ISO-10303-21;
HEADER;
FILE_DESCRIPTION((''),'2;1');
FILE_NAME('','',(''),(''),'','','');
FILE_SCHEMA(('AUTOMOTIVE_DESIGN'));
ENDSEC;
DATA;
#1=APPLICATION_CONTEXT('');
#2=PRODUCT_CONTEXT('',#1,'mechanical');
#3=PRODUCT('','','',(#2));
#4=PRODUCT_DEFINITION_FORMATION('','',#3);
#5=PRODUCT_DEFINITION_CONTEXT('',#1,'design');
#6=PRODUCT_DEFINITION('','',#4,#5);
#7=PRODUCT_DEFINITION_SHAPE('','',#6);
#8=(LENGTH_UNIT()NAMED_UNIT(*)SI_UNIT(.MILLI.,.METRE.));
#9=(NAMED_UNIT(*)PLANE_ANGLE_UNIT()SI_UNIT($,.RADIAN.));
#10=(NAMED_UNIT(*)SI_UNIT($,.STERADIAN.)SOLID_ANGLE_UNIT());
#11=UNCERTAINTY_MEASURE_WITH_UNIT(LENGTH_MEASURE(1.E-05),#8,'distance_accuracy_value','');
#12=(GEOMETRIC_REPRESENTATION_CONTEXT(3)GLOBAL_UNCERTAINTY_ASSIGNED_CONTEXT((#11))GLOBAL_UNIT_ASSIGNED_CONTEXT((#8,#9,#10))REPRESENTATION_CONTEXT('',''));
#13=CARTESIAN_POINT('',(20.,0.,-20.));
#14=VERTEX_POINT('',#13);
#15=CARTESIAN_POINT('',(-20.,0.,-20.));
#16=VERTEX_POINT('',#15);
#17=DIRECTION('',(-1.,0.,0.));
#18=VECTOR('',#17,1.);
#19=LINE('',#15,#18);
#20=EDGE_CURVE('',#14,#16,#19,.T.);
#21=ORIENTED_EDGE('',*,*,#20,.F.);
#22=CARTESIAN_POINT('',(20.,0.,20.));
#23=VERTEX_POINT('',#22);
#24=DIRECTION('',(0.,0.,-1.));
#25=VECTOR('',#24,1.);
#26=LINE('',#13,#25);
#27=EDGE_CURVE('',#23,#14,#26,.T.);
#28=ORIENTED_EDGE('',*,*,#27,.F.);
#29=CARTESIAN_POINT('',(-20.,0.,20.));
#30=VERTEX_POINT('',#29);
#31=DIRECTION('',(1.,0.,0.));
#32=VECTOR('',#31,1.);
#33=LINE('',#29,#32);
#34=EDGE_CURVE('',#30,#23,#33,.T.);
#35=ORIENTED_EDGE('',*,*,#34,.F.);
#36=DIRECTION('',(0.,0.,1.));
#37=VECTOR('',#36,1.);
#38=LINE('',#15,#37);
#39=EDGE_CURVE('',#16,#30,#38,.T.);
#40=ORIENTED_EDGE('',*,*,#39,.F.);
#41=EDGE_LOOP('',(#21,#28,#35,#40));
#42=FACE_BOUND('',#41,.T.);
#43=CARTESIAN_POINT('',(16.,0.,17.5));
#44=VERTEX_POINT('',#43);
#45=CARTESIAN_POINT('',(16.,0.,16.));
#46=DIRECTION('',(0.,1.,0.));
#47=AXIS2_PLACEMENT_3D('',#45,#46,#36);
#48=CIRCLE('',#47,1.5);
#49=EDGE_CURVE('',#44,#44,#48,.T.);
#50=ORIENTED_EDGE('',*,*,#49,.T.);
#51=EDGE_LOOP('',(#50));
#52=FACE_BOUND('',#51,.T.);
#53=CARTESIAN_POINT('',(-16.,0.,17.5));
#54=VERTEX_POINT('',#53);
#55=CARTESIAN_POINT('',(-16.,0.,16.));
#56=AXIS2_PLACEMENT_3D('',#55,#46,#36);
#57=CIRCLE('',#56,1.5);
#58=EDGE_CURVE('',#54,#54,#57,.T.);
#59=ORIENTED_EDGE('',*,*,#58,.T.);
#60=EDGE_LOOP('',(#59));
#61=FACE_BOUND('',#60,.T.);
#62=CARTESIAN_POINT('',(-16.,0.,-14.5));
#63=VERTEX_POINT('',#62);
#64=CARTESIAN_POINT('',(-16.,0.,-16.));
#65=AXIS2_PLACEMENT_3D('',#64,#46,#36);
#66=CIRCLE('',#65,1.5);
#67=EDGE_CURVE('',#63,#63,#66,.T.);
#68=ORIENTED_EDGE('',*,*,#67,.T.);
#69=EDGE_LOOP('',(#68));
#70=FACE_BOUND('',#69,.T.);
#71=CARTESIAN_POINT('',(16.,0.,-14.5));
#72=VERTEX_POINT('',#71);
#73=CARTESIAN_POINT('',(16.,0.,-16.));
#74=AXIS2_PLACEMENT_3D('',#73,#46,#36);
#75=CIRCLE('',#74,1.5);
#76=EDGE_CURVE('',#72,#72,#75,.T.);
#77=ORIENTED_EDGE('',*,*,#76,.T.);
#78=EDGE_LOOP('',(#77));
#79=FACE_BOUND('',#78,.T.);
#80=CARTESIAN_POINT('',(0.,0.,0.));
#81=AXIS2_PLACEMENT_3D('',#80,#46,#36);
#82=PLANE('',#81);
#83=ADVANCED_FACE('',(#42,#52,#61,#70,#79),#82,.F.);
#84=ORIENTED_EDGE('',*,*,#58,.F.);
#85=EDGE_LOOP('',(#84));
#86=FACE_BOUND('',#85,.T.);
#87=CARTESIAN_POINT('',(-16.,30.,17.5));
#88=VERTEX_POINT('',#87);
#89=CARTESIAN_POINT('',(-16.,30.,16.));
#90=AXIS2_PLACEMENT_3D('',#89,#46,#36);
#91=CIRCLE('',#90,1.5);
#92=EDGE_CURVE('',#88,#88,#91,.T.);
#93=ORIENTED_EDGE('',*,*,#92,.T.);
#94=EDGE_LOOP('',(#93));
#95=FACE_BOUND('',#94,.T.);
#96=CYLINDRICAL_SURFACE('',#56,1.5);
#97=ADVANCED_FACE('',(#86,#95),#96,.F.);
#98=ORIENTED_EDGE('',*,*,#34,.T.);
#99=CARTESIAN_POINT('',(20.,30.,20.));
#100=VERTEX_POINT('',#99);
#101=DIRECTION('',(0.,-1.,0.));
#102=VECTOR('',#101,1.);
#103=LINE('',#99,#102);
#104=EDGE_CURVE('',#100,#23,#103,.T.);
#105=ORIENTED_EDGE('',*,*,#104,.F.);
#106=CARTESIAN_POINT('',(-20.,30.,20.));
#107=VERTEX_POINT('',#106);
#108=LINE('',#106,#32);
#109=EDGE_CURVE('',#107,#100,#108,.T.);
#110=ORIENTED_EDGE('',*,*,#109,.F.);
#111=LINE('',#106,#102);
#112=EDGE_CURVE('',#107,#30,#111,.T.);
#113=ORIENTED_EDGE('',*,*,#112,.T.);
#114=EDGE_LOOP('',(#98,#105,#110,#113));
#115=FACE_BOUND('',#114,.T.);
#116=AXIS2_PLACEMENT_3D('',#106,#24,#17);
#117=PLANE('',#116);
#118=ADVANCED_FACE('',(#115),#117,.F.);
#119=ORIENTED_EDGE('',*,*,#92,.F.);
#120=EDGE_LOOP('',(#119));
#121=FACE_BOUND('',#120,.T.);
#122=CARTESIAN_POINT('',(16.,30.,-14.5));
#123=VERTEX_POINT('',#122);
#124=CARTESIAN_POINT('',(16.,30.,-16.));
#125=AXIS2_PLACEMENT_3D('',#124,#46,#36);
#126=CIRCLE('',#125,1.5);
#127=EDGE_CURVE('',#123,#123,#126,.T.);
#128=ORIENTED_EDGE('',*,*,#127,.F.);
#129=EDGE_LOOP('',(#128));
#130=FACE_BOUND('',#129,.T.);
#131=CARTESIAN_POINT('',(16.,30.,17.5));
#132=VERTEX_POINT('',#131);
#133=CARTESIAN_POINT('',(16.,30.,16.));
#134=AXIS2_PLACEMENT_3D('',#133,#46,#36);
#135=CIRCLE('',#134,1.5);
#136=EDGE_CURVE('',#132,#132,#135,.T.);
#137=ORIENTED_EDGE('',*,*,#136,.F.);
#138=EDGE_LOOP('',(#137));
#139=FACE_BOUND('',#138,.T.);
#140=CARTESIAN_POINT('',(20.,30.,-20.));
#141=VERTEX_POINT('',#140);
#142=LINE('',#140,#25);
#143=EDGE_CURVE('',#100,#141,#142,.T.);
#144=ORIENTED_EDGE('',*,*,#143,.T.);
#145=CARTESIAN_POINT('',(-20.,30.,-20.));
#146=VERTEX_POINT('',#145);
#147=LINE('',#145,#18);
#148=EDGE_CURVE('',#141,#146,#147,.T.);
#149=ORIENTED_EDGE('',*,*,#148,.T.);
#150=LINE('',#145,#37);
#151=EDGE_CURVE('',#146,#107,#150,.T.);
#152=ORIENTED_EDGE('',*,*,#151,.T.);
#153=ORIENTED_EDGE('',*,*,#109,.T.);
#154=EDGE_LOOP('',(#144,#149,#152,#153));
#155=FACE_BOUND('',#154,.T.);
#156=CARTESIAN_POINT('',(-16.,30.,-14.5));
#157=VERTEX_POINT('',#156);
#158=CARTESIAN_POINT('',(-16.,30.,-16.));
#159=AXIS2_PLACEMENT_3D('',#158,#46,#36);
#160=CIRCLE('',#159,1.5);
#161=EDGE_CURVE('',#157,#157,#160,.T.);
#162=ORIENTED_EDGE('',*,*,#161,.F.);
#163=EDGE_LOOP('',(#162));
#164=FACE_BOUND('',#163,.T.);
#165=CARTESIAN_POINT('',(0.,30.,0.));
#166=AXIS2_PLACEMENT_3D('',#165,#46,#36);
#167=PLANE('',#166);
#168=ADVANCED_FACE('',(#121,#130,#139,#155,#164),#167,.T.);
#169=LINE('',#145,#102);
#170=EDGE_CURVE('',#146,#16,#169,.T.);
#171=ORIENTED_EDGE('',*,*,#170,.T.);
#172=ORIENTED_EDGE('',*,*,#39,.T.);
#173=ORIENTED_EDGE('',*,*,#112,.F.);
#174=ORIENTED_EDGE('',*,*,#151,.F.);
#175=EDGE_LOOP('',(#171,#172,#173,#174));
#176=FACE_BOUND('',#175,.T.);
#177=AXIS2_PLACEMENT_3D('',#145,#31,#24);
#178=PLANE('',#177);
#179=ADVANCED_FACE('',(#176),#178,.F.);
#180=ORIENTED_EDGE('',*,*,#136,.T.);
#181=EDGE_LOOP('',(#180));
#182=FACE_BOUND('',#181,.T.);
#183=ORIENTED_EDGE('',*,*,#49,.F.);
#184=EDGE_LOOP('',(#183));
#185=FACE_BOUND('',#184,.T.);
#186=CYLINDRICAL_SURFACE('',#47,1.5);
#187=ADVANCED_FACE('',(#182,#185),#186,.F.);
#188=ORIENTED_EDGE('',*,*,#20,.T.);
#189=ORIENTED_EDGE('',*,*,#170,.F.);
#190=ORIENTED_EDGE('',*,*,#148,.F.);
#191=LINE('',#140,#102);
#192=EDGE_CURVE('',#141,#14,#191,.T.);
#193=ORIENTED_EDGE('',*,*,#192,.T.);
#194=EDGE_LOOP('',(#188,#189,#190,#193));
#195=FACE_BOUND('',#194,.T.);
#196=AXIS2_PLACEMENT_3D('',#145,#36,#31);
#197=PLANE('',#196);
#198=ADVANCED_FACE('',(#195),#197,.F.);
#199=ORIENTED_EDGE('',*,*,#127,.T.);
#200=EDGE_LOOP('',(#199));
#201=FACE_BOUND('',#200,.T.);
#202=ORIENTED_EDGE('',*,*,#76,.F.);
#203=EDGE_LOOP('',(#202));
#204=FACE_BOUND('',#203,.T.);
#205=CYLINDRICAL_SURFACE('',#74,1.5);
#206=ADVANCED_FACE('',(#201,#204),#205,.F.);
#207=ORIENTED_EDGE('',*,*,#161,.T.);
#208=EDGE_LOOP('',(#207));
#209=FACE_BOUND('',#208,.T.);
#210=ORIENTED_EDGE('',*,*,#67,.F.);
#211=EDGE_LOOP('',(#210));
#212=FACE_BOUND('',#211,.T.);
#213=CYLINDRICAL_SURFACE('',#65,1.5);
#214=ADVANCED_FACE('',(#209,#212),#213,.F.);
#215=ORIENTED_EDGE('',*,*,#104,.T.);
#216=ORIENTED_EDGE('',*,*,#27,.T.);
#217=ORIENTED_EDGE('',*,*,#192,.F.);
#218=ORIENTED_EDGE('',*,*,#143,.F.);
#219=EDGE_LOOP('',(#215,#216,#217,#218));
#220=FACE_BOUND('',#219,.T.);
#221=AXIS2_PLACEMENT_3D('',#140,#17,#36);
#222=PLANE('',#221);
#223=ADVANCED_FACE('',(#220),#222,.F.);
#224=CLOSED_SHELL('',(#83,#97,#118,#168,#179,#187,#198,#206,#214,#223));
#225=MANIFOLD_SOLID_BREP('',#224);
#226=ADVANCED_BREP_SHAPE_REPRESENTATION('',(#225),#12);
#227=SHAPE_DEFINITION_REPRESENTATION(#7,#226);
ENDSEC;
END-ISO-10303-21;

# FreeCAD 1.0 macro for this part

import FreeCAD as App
import Part
import Sketcher
Q = App.Units.Quantity

doc = App.newDocument("Part")
body = doc.addObject("PartDesign::Body", "Body")

# Sketch on XZ plane
sketch1 = body.newObject("Sketcher::SketchObject", "Sketch")
sketch1.AttachmentSupport = (doc.getObject("XZ_Plane"), [""])
sketch1.MapMode = "FlatFace"
sketch1.addGeometry([
    Part.LineSegment(App.Vector(-20, -20, 0), App.Vector(-20, 20, 0)),
    Part.LineSegment(App.Vector(-20, 20, 0), App.Vector(20, 20, 0)),
    Part.LineSegment(App.Vector(20, 20, 0), App.Vector(20, -20, 0)),
    Part.LineSegment(App.Vector(20, -20, 0), App.Vector(-20, -20, 0)),
], False)
sketch1.addConstraint([
    Sketcher.Constraint("Coincident", 0, 2, 1, 1),
    Sketcher.Constraint("Coincident", 1, 2, 2, 1),
    Sketcher.Constraint("Coincident", 2, 2, 3, 1),
    Sketcher.Constraint("Coincident", 3, 2, 0, 1),
    Sketcher.Constraint("Vertical", 0),
    Sketcher.Constraint("Horizontal", 1),
    Sketcher.Constraint("Vertical", 2),
    Sketcher.Constraint("Horizontal", 3),
    Sketcher.Constraint("Symmetric", 0, 2, 2, 2, -1, 1),
    Sketcher.Constraint("Equal", 3, 0),
    Sketcher.Constraint("DistanceX", 1, 1, 1, 2, Q("40 mm")),
])
pad1 = body.newObject("PartDesign::Pad", "Pad")
pad1.Profile = sketch1
pad1.Length = 30
pad1.Reversed = True

# Sketch on XZ plane
sketch2 = body.newObject("Sketcher::SketchObject", "Sketch001")
sketch2.AttachmentSupport = (doc.getObject("XZ_Plane"), [""])
sketch2.MapMode = "FlatFace"
sketch2.AttachmentOffset = App.Placement(App.Vector(0, 0, -30), App.Rotation())
sketch2.addGeometry([
    Part.Circle(App.Vector(-16, -16, 0), App.Vector(0, 0, 1), 1.5),
    Part.Circle(App.Vector(16, -16, 0), App.Vector(0, 0, 1), 1.5),
    Part.Circle(App.Vector(16, 16, 0), App.Vector(0, 0, 1), 1.5),
    Part.Circle(App.Vector(-16, 16, 0), App.Vector(0, 0, 1), 1.5),
], False)
sketch2.addConstraint([
    Sketcher.Constraint("Equal", 0, 1),
    Sketcher.Constraint("Equal", 1, 2),
    Sketcher.Constraint("Equal", 2, 3),
    Sketcher.Constraint("Symmetric", 0, 3, 2, 3, -1, 1),
    Sketcher.Constraint("Symmetric", 1, 3, 3, 3, -1, 1),
    Sketcher.Constraint("Symmetric", 0, 3, 1, 3, -2),
    Sketcher.Constraint("Diameter", 0, Q("3 mm")),
    Sketcher.Constraint("DistanceX", 0, 3, -1, 1, Q("16 mm")),
    Sketcher.Constraint("DistanceY", 0, 3, -1, 1, Q("16 mm")),
])
pocket1 = body.newObject("PartDesign::Pocket", "Pocket")
pocket1.Profile = sketch2
pocket1.Type = "ThroughAll"
pocket1.Reversed = True

doc.recompute()
